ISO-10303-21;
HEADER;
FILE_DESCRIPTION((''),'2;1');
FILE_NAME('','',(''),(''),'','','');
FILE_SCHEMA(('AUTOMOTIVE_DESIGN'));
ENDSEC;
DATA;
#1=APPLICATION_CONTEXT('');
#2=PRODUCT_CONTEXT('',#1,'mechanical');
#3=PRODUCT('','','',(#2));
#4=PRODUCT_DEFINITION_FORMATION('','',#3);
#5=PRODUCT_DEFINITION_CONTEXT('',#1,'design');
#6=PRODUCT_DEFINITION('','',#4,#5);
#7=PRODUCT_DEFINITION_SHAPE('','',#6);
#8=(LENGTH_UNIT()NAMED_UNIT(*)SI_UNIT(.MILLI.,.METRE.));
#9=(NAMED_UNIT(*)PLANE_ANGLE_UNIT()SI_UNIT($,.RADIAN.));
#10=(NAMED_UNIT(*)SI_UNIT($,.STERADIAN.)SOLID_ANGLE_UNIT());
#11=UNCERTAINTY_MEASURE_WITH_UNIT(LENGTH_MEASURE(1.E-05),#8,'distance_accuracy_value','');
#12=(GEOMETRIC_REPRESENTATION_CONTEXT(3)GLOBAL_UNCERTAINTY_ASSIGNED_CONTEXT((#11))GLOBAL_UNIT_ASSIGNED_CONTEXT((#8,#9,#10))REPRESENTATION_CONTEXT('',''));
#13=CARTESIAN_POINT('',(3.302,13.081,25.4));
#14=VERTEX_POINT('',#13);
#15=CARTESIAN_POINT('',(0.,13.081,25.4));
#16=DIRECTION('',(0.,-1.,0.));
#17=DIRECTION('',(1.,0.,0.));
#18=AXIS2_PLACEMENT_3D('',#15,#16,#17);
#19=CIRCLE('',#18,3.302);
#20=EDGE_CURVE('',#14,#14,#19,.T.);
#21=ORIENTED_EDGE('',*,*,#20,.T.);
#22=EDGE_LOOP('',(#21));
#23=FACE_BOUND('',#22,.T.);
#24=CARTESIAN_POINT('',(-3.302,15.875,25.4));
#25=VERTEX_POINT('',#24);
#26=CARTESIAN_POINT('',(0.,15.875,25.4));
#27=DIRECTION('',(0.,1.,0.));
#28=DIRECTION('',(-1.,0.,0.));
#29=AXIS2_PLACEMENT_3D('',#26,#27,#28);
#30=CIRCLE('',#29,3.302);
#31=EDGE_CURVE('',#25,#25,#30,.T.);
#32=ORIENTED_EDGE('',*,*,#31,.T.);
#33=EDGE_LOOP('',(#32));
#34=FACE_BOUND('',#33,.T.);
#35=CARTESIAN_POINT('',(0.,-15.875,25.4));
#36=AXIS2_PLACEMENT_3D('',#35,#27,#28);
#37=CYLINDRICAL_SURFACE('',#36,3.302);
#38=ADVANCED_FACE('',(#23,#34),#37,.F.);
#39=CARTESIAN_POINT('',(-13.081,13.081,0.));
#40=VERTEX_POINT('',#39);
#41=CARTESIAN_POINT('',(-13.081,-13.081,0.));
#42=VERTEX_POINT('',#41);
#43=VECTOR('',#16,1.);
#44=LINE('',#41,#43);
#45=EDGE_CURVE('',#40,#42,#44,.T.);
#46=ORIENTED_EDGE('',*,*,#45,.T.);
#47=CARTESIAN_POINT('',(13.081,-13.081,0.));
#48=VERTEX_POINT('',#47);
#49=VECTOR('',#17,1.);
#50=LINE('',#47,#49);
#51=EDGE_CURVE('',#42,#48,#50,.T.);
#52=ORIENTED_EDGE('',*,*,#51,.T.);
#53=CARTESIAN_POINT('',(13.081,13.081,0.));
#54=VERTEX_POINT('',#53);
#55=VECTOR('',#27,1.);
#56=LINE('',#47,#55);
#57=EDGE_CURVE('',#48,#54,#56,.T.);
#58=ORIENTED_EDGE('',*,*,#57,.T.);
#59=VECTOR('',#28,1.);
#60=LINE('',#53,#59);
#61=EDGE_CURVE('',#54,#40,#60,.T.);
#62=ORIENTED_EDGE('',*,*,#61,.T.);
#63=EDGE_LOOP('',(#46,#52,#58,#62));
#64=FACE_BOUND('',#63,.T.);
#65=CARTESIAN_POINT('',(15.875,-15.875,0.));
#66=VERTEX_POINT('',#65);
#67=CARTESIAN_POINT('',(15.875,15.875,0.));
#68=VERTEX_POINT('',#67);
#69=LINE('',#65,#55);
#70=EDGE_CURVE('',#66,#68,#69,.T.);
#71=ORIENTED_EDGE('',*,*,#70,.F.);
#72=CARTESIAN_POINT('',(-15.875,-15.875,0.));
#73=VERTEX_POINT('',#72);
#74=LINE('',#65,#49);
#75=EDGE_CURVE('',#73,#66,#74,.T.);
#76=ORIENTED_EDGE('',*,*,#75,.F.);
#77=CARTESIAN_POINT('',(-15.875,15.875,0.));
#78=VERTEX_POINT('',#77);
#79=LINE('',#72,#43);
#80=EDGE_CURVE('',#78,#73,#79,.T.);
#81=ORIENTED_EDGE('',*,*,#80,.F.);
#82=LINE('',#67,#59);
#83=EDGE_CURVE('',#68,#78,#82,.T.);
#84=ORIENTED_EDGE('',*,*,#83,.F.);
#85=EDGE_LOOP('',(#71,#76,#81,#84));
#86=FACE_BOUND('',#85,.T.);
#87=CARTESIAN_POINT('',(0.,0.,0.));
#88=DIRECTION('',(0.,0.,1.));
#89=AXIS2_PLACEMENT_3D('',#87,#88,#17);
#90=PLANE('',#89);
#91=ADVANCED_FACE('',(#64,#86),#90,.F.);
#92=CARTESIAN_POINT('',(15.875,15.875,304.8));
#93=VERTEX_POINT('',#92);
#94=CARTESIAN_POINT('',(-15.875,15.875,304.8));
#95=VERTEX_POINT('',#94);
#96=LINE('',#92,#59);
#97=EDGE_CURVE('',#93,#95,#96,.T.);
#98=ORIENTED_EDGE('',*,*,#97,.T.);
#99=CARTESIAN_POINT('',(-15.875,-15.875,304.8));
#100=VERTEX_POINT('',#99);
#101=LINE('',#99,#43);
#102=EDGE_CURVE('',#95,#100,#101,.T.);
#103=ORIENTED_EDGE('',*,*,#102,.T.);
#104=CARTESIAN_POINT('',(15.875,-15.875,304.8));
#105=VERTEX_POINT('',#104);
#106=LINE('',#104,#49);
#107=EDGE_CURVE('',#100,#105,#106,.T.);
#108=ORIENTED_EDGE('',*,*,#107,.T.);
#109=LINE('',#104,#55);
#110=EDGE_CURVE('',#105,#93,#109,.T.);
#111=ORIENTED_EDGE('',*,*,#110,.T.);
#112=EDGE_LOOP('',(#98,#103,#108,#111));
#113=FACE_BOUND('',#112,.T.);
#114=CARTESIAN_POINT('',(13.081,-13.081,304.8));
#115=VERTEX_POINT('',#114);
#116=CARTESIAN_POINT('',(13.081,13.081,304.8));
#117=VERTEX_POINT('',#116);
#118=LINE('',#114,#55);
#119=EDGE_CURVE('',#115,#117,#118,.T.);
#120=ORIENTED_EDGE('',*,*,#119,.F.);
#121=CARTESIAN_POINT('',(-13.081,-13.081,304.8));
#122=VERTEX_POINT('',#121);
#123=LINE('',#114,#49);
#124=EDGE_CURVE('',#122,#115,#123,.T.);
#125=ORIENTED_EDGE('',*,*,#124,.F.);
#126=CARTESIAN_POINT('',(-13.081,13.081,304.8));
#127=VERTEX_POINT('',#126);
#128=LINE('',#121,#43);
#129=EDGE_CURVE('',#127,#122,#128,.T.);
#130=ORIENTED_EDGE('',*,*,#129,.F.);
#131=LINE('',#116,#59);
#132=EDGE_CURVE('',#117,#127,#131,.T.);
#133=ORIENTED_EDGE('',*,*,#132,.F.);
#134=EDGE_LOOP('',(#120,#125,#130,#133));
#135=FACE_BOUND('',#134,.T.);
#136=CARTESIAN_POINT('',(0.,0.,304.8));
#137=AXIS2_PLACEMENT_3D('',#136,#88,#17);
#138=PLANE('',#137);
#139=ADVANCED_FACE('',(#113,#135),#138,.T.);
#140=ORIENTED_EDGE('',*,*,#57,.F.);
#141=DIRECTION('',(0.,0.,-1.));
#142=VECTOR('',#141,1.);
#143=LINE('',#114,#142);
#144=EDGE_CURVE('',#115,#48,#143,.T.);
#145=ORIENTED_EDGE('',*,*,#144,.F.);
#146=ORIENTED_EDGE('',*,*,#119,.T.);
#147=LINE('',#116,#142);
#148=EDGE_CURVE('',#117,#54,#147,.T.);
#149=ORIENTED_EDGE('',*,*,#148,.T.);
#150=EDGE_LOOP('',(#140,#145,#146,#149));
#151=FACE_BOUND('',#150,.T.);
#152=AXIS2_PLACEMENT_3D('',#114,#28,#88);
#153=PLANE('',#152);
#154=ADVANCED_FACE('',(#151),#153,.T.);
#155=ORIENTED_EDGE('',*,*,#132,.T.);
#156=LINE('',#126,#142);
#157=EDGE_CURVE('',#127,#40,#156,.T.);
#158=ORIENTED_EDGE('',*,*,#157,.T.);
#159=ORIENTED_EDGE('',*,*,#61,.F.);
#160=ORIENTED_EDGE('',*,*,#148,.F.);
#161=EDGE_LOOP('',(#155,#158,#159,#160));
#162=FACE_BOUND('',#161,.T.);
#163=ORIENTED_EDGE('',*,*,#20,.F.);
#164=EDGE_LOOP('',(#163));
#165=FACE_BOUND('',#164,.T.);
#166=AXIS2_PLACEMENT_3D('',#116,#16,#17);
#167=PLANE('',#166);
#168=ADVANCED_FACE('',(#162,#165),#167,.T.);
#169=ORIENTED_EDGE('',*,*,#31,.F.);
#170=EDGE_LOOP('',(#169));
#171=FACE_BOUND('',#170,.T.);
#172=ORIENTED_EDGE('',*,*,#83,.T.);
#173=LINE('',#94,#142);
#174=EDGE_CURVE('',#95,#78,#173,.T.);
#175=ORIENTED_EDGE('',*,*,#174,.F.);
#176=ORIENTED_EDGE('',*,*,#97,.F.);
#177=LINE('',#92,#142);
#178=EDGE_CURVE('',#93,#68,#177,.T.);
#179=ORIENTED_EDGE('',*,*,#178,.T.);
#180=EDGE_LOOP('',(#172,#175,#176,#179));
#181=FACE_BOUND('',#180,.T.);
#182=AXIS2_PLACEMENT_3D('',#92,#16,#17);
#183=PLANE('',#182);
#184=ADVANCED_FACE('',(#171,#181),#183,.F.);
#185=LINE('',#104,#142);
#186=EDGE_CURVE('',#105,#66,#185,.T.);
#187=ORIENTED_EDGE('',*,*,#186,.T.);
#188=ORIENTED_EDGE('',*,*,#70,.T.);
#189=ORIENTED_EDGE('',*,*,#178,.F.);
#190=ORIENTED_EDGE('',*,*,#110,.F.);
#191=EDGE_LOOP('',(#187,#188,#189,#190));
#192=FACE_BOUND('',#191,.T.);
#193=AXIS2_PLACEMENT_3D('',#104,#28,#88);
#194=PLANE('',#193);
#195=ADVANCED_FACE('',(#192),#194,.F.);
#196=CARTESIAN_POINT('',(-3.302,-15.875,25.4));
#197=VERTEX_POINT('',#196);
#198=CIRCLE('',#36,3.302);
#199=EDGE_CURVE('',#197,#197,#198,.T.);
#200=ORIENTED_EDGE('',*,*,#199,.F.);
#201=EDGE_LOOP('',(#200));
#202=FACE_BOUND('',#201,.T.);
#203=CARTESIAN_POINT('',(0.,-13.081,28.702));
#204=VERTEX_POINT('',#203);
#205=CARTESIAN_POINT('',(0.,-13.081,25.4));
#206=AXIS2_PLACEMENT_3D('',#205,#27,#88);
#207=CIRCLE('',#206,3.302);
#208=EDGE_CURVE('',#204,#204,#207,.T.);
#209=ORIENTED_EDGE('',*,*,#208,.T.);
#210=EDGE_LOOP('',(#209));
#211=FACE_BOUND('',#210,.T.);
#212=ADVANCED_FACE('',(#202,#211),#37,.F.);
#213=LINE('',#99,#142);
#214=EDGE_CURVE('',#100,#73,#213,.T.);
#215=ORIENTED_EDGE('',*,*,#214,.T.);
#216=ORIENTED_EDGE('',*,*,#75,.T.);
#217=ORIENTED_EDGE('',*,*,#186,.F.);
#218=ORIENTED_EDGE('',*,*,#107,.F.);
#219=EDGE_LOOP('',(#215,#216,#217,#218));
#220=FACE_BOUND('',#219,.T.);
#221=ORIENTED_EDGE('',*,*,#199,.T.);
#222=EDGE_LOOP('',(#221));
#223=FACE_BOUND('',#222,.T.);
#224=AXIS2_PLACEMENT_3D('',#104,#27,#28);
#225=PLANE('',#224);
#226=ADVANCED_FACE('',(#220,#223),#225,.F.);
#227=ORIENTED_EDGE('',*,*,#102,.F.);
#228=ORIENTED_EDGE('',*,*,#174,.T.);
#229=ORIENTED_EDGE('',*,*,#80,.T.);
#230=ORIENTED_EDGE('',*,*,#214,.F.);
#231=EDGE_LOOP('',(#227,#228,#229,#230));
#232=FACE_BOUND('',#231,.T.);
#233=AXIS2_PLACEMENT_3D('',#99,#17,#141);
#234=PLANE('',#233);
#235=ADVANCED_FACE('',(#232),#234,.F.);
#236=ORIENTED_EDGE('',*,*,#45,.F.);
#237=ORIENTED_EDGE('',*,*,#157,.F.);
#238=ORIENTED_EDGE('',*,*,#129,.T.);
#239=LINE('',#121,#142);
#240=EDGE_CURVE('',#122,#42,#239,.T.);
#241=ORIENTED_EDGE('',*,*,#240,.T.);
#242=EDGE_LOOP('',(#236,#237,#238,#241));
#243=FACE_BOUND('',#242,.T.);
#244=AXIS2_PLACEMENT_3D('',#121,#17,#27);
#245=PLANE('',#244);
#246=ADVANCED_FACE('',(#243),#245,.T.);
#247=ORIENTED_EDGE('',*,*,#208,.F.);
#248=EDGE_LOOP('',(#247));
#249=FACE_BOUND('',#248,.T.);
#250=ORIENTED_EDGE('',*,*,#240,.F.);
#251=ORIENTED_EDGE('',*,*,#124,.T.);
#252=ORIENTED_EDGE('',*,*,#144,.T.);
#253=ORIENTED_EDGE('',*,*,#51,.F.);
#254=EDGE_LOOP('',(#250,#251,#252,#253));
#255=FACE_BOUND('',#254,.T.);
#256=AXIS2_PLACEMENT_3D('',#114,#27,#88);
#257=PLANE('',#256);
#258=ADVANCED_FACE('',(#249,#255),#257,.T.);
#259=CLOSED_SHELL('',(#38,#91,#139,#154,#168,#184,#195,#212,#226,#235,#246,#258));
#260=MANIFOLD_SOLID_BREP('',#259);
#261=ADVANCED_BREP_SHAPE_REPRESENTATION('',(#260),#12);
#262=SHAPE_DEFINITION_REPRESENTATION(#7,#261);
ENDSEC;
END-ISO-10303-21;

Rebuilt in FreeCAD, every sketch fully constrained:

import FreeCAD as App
import Part
import Sketcher

V = App.Vector
Q = App.Units.Quantity


def add_polygon(sketch, points):
    """Adds a closed chain of lines whose ends are joined by coincident constraints."""
    first, n = sketch.GeometryCount, len(points)
    for a, b in zip(points, points[1:] + points[:1]):
        sketch.addGeometry(Part.LineSegment(App.Vector(*a, 0), App.Vector(*b, 0)), False)
    for i in range(n):
        sketch.addConstraint(Sketcher.Constraint("Coincident", first + i, 2, first + (i + 1) % n, 1))

doc = App.newDocument("Part")
params = doc.addObject("Spreadsheet::Sheet", "Params")
for row, (alias, value) in enumerate([
    ("sketch1_width", "1.25 in"),
    ("sketch1_width2", "1.03 in"),
    ("pad1_length", "12 in"),
    ("sketch2_diameter", "0.26 in"),
], start=1):
    params.set(f"A{row}", alias)
    params.set(f"B{row}", "=" + value)
    params.setAlias(f"B{row}", alias)

body = doc.addObject("PartDesign::Body", "Body")

# Sketch on XY plane
sketch1 = doc.addObject("Sketcher::SketchObject", "Sketch")
body.addObject(sketch1)
sketch1.AttachmentSupport = (doc.XY_Plane, [""])
sketch1.MapMode = "FlatFace"
add_polygon(sketch1, [(-16, 16), (-16, -16), (16, -16), (16, 16)])  # lines 0-3
add_polygon(sketch1, [(13, -13), (-13, -13), (-13, 13), (13, 13)])  # lines 4-7
sketch1.addConstraint([
    Sketcher.Constraint("Vertical", 0),
    Sketcher.Constraint("Horizontal", 1),
    Sketcher.Constraint("Vertical", 2),
    Sketcher.Constraint("Horizontal", 3),
    Sketcher.Constraint("Horizontal", 4),
    Sketcher.Constraint("Vertical", 5),
    Sketcher.Constraint("Horizontal", 6),
    Sketcher.Constraint("Vertical", 7),
    Sketcher.Constraint("Symmetric", 0, 2, 2, 2, -1, 1),
    Sketcher.Constraint("Symmetric", 4, 2, 6, 2, -1, 1),
    Sketcher.Constraint("Equal", 3, 0),
    Sketcher.Constraint("Equal", 6, 5),
    Sketcher.Constraint("DistanceX", 1, 1, 1, 2, Q("1.25 in")),
    Sketcher.Constraint("DistanceX", 4, 2, 4, 1, Q("1.03 in")),
])
sketch1.setExpression("Constraints[20]", "Params.sketch1_width")
sketch1.setExpression("Constraints[21]", "Params.sketch1_width2")
pad1 = doc.addObject("PartDesign::Pad", "Pad")
body.addObject(pad1)
pad1.Profile = sketch1
pad1.setExpression("Length", "Params.pad1_length")

# Sketch on XZ plane
sketch2 = doc.addObject("Sketcher::SketchObject", "Sketch001")
body.addObject(sketch2)
sketch2.AttachmentSupport = (doc.XZ_Plane, [""])
sketch2.MapMode = "FlatFace"
sketch2.AttachmentOffset = App.Placement(V(0, 0, -0.625 * 25.4), App.Rotation())
sketch2.addGeometry(Part.Circle(V(0, 25.4, 0), V(0, 0, 1), 3.3), False)
sketch2.addConstraint([
    Sketcher.Constraint("PointOnObject", 0, 3, -2),
    Sketcher.Constraint("Diameter", 0, Q("0.26 in")),
    Sketcher.Constraint("DistanceY", -1, 1, 0, 3, Q("1 in")),
])
sketch2.setExpression("Constraints[1]", "Params.sketch2_diameter")
pocket1 = doc.addObject("PartDesign::Pocket", "Pocket")
body.addObject(pocket1)
pocket1.Profile = sketch2
pocket1.Type = "ThroughAll"
pocket1.Reversed = True

doc.recompute()
